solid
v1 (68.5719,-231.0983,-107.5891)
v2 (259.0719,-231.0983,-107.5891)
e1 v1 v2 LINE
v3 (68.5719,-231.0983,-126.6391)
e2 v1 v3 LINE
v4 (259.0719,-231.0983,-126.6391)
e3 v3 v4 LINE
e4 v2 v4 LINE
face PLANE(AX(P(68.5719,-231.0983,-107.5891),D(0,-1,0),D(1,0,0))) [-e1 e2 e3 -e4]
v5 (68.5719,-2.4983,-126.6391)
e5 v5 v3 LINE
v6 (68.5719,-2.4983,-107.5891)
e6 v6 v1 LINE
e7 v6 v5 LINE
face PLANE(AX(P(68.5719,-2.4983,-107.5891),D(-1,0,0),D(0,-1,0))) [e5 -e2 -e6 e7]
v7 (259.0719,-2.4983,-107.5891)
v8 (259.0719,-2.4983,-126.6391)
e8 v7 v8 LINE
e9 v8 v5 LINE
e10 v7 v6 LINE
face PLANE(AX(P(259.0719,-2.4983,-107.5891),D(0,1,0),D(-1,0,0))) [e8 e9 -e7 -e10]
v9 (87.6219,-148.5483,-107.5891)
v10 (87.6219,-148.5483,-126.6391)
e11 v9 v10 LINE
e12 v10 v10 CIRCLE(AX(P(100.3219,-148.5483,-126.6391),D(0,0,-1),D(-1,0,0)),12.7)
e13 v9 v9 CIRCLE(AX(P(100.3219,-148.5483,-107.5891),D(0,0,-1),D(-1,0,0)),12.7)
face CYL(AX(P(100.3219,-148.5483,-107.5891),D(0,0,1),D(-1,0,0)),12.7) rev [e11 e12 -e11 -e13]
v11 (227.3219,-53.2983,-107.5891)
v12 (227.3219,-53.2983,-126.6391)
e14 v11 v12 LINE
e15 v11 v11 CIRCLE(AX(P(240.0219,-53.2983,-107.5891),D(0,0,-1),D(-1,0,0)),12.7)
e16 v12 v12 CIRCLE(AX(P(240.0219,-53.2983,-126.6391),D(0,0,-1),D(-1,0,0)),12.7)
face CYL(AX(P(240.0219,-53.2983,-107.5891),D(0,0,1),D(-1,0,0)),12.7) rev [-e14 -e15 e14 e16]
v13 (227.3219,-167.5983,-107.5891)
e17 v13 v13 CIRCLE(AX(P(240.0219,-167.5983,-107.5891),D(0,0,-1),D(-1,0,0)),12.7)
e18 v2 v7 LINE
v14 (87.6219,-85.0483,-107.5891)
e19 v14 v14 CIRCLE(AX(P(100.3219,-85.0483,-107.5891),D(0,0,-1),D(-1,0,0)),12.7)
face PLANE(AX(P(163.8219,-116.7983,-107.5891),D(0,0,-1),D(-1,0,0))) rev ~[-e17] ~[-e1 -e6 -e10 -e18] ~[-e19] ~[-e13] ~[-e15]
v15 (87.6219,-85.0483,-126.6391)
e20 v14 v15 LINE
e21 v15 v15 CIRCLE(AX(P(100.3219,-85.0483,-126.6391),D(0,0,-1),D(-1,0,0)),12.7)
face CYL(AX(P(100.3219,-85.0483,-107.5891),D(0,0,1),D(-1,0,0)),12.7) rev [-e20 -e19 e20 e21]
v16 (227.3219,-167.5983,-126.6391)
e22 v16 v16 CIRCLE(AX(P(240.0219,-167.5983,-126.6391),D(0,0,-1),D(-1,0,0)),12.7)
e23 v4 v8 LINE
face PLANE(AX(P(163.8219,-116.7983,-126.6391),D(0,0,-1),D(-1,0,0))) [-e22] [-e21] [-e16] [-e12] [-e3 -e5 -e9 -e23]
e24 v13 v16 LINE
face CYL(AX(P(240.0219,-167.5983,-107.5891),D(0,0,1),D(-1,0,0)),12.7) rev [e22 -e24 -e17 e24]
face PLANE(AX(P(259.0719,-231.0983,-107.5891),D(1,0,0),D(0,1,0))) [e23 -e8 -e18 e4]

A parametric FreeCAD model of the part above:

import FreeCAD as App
import Part
import Sketcher

V = App.Vector
Q = App.Units.Quantity


def add_polygon(sketch, points):
    """Adds a closed chain of lines whose ends are joined by coincident constraints."""
    first, n = sketch.GeometryCount, len(points)
    for a, b in zip(points, points[1:] + points[:1]):
        sketch.addGeometry(Part.LineSegment(App.Vector(*a, 0), App.Vector(*b, 0)), False)
    for i in range(n):
        sketch.addConstraint(Sketcher.Constraint("Coincident", first + i, 2, first + (i + 1) % n, 1))

doc = App.newDocument("Part")
body = doc.addObject("PartDesign::Body", "Body")

sketch1 = body.newObject("Sketcher::SketchObject", "Sketch")
sketch1.AttachmentSupport = (doc.getObject("XY_Plane"), [""])
sketch1.MapMode = "FlatFace"
sketch1.AttachmentOffset = App.Placement(V(0, 0, -4.2357913 * 25.4), App.Rotation())
add_polygon(sketch1, [(69, -2), (259, -2), (259, -231), (69, -231)])
sketch1.addGeometry(Part.Circle(V(240, -168, 0), V(0, 0, 1), 13), False)
sketch1.addGeometry(Part.Circle(V(100, -149, 0), V(0, 0, 1), 13), False)
sketch1.addGeometry(Part.Circle(V(240, -53, 0), V(0, 0, 1), 13), False)
sketch1.addGeometry(Part.Circle(V(100, -85, 0), V(0, 0, 1), 13), False)
sketch1.addConstraint(Sketcher.Constraint("Horizontal", 0))
sketch1.addConstraint(Sketcher.Constraint("Vertical", 1))
sketch1.addConstraint(Sketcher.Constraint("Horizontal", 2))
sketch1.addConstraint(Sketcher.Constraint("Vertical", 3))
sketch1.addConstraint(Sketcher.Constraint("Equal", 4, 5))
sketch1.addConstraint(Sketcher.Constraint("Equal", 5, 6))
sketch1.addConstraint(Sketcher.Constraint("Equal", 6, 7))
sketch1.addConstraint(Sketcher.Constraint("Vertical", 4, 3, 6, 3))
sketch1.addConstraint(Sketcher.Constraint("Vertical", 5, 3, 7, 3))
sketch1.addConstraint(Sketcher.Constraint("Diameter", 4, Q("1 in")))
sketch1.addConstraint(Sketcher.Constraint("DistanceY", 1, 2, 1, 1, Q("9 in")))
sketch1.addConstraint(Sketcher.Constraint("DistanceX", 0, 1, 0, 2, Q("7.5 in")))
sketch1.addConstraint(Sketcher.Constraint("DistanceY", 4, 3, 6, 3, Q("4.5 in")))
sketch1.addConstraint(Sketcher.Constraint("DistanceY", 5, 3, 7, 3, Q("2.5 in")))
sketch1.addConstraint(Sketcher.Constraint("DistanceY", 1, 2, 4, 3, Q("2.5 in")))
sketch1.addConstraint(Sketcher.Constraint("DistanceY", 4, 3, 5, 3, Q("0.75 in")))
sketch1.addConstraint(Sketcher.Constraint("DistanceX", 6, 3, 0, 2, Q("0.75 in")))
sketch1.addConstraint(Sketcher.Constraint("DistanceX", 2, 2, 5, 3, Q("1.25 in")))
sketch1.addConstraint(Sketcher.Constraint("DistanceX", -1, 1, 4, 3, Q("240.022 mm")))
sketch1.addConstraint(Sketcher.Constraint("DistanceY", 4, 3, -1, 1, Q("167.5983 mm")))
pad1 = body.newObject("PartDesign::Pad", "Pad")
pad1.Profile = sketch1
pad1.Length = Q("0.75 in")
pad1.Reversed = True

doc.recompute()
